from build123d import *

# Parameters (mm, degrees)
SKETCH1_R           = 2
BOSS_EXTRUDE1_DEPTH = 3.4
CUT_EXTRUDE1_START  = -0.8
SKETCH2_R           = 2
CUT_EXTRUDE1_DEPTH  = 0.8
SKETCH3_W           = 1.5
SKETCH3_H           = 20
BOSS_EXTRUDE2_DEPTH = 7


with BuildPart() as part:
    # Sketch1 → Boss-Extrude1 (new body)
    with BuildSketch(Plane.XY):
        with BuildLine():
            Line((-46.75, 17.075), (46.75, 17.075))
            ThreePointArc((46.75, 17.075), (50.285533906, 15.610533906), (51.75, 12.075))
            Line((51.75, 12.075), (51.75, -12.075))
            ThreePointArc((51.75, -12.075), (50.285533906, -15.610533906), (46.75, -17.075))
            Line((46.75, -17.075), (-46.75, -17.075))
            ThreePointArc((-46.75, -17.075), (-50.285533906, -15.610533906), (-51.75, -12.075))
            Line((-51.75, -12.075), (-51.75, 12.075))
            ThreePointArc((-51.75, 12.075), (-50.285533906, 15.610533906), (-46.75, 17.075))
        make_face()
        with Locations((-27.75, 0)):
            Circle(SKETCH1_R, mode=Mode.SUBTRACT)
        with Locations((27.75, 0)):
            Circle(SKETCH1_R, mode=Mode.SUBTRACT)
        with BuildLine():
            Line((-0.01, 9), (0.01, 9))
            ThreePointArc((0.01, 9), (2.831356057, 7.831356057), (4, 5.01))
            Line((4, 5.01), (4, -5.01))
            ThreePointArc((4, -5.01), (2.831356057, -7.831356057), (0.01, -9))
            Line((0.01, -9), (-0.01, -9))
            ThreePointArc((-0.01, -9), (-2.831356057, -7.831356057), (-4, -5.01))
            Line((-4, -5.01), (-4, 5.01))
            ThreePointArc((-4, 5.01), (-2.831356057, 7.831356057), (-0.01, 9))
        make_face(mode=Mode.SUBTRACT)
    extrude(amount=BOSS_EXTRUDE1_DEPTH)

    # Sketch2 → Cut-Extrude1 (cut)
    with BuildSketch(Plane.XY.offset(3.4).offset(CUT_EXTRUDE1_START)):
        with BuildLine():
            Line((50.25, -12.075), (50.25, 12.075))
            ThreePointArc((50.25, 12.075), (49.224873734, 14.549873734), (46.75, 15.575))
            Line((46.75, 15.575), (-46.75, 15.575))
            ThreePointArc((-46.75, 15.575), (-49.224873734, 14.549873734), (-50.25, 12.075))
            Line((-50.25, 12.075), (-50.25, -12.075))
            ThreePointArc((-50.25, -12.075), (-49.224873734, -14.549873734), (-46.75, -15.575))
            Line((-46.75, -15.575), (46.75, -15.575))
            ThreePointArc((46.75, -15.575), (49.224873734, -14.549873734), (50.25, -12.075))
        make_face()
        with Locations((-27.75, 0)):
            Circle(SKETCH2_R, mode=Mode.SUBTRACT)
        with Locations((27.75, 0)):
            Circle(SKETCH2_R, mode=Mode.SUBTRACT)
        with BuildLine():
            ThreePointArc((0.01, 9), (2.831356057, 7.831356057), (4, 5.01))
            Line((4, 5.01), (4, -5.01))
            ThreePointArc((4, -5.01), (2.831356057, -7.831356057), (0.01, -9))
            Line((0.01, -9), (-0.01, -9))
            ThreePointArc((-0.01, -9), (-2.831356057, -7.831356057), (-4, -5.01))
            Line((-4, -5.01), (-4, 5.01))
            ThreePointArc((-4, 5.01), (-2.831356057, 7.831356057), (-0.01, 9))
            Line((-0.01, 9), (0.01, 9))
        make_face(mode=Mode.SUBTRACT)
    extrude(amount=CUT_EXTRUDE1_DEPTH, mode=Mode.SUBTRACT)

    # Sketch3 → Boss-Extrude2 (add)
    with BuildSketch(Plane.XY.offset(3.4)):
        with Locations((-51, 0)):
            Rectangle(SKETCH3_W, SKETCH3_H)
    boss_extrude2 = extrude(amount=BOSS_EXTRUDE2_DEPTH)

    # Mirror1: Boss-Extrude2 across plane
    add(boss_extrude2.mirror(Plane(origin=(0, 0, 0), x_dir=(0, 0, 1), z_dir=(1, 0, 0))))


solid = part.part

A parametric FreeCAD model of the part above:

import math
import FreeCAD as App
import Part
import Sketcher

V = App.Vector
Q = App.Units.Quantity


def add_polygon(sketch, points):
    """Adds a closed chain of lines whose ends are joined by coincident constraints."""
    first, n = sketch.GeometryCount, len(points)
    for a, b in zip(points, points[1:] + points[:1]):
        sketch.addGeometry(Part.LineSegment(App.Vector(*a, 0), App.Vector(*b, 0)), False)
    for i in range(n):
        sketch.addConstraint(Sketcher.Constraint("Coincident", first + i, 2, first + (i + 1) % n, 1))

doc = App.newDocument("Part")
params = doc.addObject("Spreadsheet::Sheet", "Params")
for row, (alias, value) in enumerate([
    ("sketch1_diameter", "4 mm"),
    ("sketch1_radius", "5 mm"),
    ("sketch1_radius2", "3.99 mm"),
    ("sketch1_width", "93.5 mm"),
    ("sketch1_height", "24.15 mm"),
    ("pad1_length", "3.4 mm"),
    ("sketch2_diameter", "4 mm"),
    ("sketch2_radius", "3.5 mm"),
    ("sketch2_radius2", "3.99 mm"),
    ("sketch2_width", "93.5 mm"),
    ("sketch2_height", "24.15 mm"),
    ("pocket1_length", "0.8 mm"),
    ("sketch3_height", "20 mm"),
    ("sketch3_width", "1.5 mm"),
    ("pad2_length", "7 mm"),
], start=1):
    params.set(f"A{row}", alias)
    params.set(f"B{row}", "=" + value)
    params.setAlias(f"B{row}", alias)

body = doc.addObject("PartDesign::Body", "Body")

sketch1 = body.newObject("Sketcher::SketchObject", "Sketch")
sketch1.AttachmentSupport = (doc.getObject("XY_Plane"), [""])
sketch1.MapMode = "FlatFace"
sketch1.addGeometry([
    Part.LineSegment(V(46.75, 17.075, 0), V(-46.75, 17.075, 0)),
    Part.ArcOfCircle(Part.Circle(V(-46.75, 12.075, 0), V(0, 0, 1), 5), math.radians(90), math.radians(180)),
    Part.LineSegment(V(-51.75, 12.075, 0), V(-51.75, -12.075, 0)),
    Part.ArcOfCircle(Part.Circle(V(-46.75, -12.075, 0), V(0, 0, 1), 5), math.radians(180), math.radians(270)),
    Part.LineSegment(V(-46.75, -17.075, 0), V(46.75, -17.075, 0)),
    Part.ArcOfCircle(Part.Circle(V(46.75, -12.075, 0), V(0, 0, 1), 5), math.radians(-90), math.radians(0)),
    Part.LineSegment(V(51.75, -12.075, 0), V(51.75, 12.075, 0)),
    Part.ArcOfCircle(Part.Circle(V(46.75, 12.075, 0), V(0, 0, 1), 5), math.radians(0), math.radians(90)),
    Part.Circle(V(27.75, 0, 0), V(0, 0, 1), 2),
    Part.LineSegment(V(-0.01, 9, 0), V(0.01, 9, 0)),
    Part.ArcOfCircle(Part.Circle(V(0.01, 5.01, 0), V(0, 0, 1), 3.99), math.radians(0), math.radians(90)),
    Part.LineSegment(V(4, 5.01, 0), V(4, -5.01, 0)),
    Part.ArcOfCircle(Part.Circle(V(0.01, -5.01, 0), V(0, 0, 1), 3.99), math.radians(-90), math.radians(0)),
    Part.LineSegment(V(0.01, -9, 0), V(-0.01, -9, 0)),
    Part.ArcOfCircle(Part.Circle(V(-0.01, -5.01, 0), V(0, 0, 1), 3.99), math.radians(180), math.radians(270)),
    Part.LineSegment(V(-4, -5.01, 0), V(-4, 5.01, 0)),
    Part.ArcOfCircle(Part.Circle(V(-0.01, 5.01, 0), V(0, 0, 1), 3.99), math.radians(90), math.radians(180)),
    Part.Circle(V(-27.75, 0, 0), V(0, 0, 1), 2),
], False)
sketch1.addConstraint([
    Sketcher.Constraint("Tangent", 0, 2, 1, 1),
    Sketcher.Constraint("Tangent", 1, 2, 2, 1),
    Sketcher.Constraint("Tangent", 2, 2, 3, 1),
    Sketcher.Constraint("Tangent", 3, 2, 4, 1),
    Sketcher.Constraint("Tangent", 4, 2, 5, 1),
    Sketcher.Constraint("Tangent", 5, 2, 6, 1),
    Sketcher.Constraint("Tangent", 6, 2, 7, 1),
    Sketcher.Constraint("Tangent", 7, 2, 0, 1),
    Sketcher.Constraint("Tangent", 9, 2, 10, 2),
    Sketcher.Constraint("Tangent", 10, 1, 11, 1),
    Sketcher.Constraint("Tangent", 11, 2, 12, 2),
    Sketcher.Constraint("Tangent", 12, 1, 13, 1),
    Sketcher.Constraint("Tangent", 13, 2, 14, 2),
    Sketcher.Constraint("Tangent", 14, 1, 15, 1),
    Sketcher.Constraint("Tangent", 15, 2, 16, 2),
    Sketcher.Constraint("Tangent", 16, 1, 9, 1),
    Sketcher.Constraint("Horizontal", 0),
    Sketcher.Constraint("Vertical", 2),
    Sketcher.Constraint("Horizontal", 4),
    Sketcher.Constraint("Vertical", 6),
    Sketcher.Constraint("Horizontal", 9),
    Sketcher.Constraint("Vertical", 11),
    Sketcher.Constraint("Horizontal", 13),
    Sketcher.Constraint("Vertical", 15),
    Sketcher.Constraint("Equal", 1, 3),
    Sketcher.Constraint("Equal", 3, 5),
    Sketcher.Constraint("Equal", 5, 7),
    Sketcher.Constraint("Equal", 10, 12),
    Sketcher.Constraint("Equal", 12, 14),
    Sketcher.Constraint("Equal", 14, 16),
    Sketcher.Constraint("Equal", 8, 17),
    Sketcher.Constraint("Symmetric", 1, 3, 5, 3, -1, 1),
    Sketcher.Constraint("Symmetric", 10, 3, 14, 3, -1, 1),
    Sketcher.Constraint("Symmetric", 8, 3, 17, 3, -1, 1),
    Sketcher.Constraint("PointOnObject", 8, 3, -1),
    Sketcher.Constraint("Diameter", 8, Q("4 mm")),
    Sketcher.Constraint("Radius", 1, Q("5 mm")),
    Sketcher.Constraint("Radius", 10, Q("3.99 mm")),
    Sketcher.Constraint("DistanceX", 0, 2, 0, 1, Q("93.5 mm")),
    Sketcher.Constraint("DistanceY", -1, 1, 9, 2, Q("9 mm")),
    Sketcher.Constraint("DistanceX", -1, 1, 10, 1, Q("4 mm")),
    Sketcher.Constraint("DistanceX", 8, 3, 5, 3, Q("19 mm")),
    Sketcher.Constraint("DistanceY", 2, 2, 2, 1, Q("24.15 mm")),
])
sketch1.setExpression("Constraints[35]", "Params.sketch1_diameter")
sketch1.setExpression("Constraints[36]", "Params.sketch1_radius")
sketch1.setExpression("Constraints[37]", "Params.sketch1_radius2")
sketch1.setExpression("Constraints[38]", "Params.sketch1_width")
sketch1.setExpression("Constraints[42]", "Params.sketch1_height")
pad1 = body.newObject("PartDesign::Pad", "Pad")
pad1.Profile = sketch1
pad1.setExpression("Length", "Params.pad1_length")

sketch2 = body.newObject("Sketcher::SketchObject", "Sketch001")
sketch2.AttachmentSupport = (doc.getObject("XY_Plane"), [""])
sketch2.MapMode = "FlatFace"
sketch2.AttachmentOffset = App.Placement(V(0, 0, 2.6), App.Rotation())
sketch2.addGeometry([
    Part.LineSegment(V(50.25, -12.075, 0), V(50.25, 12.075, 0)),
    Part.ArcOfCircle(Part.Circle(V(46.75, 12.075, 0), V(0, 0, 1), 3.5), math.radians(0), math.radians(90)),
    Part.LineSegment(V(46.75, 15.575, 0), V(-46.75, 15.575, 0)),
    Part.ArcOfCircle(Part.Circle(V(-46.75, 12.075, 0), V(0, 0, 1), 3.5), math.radians(90), math.radians(180)),
    Part.LineSegment(V(-50.25, 12.075, 0), V(-50.25, -12.075, 0)),
    Part.ArcOfCircle(Part.Circle(V(-46.75, -12.075, 0), V(0, 0, 1), 3.5), math.radians(-180), math.radians(-90)),
    Part.LineSegment(V(-46.75, -15.575, 0), V(46.75, -15.575, 0)),
    Part.ArcOfCircle(Part.Circle(V(46.75, -12.075, 0), V(0, 0, 1), 3.5), math.radians(-90), math.radians(0)),
    Part.Circle(V(-27.75, 0, 0), V(0, 0, 1), 2),
    Part.LineSegment(V(-0.01, 9, 0), V(0.01, 9, 0)),
    Part.ArcOfCircle(Part.Circle(V(0.01, 5.01, 0), V(0, 0, 1), 3.99), math.radians(0), math.radians(90)),
    Part.LineSegment(V(4, 5.01, 0), V(4, -5.01, 0)),
    Part.ArcOfCircle(Part.Circle(V(0.01, -5.01, 0), V(0, 0, 1), 3.99), math.radians(-90), math.radians(0)),
    Part.LineSegment(V(0.01, -9, 0), V(-0.01, -9, 0)),
    Part.ArcOfCircle(Part.Circle(V(-0.01, -5.01, 0), V(0, 0, 1), 3.99), math.radians(180), math.radians(270)),
    Part.LineSegment(V(-4, -5.01, 0), V(-4, 5.01, 0)),
    Part.ArcOfCircle(Part.Circle(V(-0.01, 5.01, 0), V(0, 0, 1), 3.99), math.radians(90), math.radians(180)),
    Part.Circle(V(27.75, 0, 0), V(0, 0, 1), 2),
], False)
sketch2.addConstraint([
    Sketcher.Constraint("Tangent", 0, 2, 1, 1),
    Sketcher.Constraint("Tangent", 1, 2, 2, 1),
    Sketcher.Constraint("Tangent", 2, 2, 3, 1),
    Sketcher.Constraint("Tangent", 3, 2, 4, 1),
    Sketcher.Constraint("Tangent", 4, 2, 5, 1),
    Sketcher.Constraint("Tangent", 5, 2, 6, 1),
    Sketcher.Constraint("Tangent", 6, 2, 7, 1),
    Sketcher.Constraint("Tangent", 7, 2, 0, 1),
    Sketcher.Constraint("Tangent", 9, 2, 10, 2),
    Sketcher.Constraint("Tangent", 10, 1, 11, 1),
    Sketcher.Constraint("Tangent", 11, 2, 12, 2),
    Sketcher.Constraint("Tangent", 12, 1, 13, 1),
    Sketcher.Constraint("Tangent", 13, 2, 14, 2),
    Sketcher.Constraint("Tangent", 14, 1, 15, 1),
    Sketcher.Constraint("Tangent", 15, 2, 16, 2),
    Sketcher.Constraint("Tangent", 16, 1, 9, 1),
    Sketcher.Constraint("Vertical", 0),
    Sketcher.Constraint("Horizontal", 2),
    Sketcher.Constraint("Vertical", 4),
    Sketcher.Constraint("Horizontal", 6),
    Sketcher.Constraint("Horizontal", 9),
    Sketcher.Constraint("Vertical", 11),
    Sketcher.Constraint("Horizontal", 13),
    Sketcher.Constraint("Vertical", 15),
    Sketcher.Constraint("Equal", 1, 3),
    Sketcher.Constraint("Equal", 3, 5),
    Sketcher.Constraint("Equal", 5, 7),
    Sketcher.Constraint("Equal", 10, 12),
    Sketcher.Constraint("Equal", 12, 14),
    Sketcher.Constraint("Equal", 14, 16),
    Sketcher.Constraint("Equal", 8, 17),
    Sketcher.Constraint("Symmetric", 1, 3, 5, 3, -1, 1),
    Sketcher.Constraint("Symmetric", 10, 3, 14, 3, -1, 1),
    Sketcher.Constraint("Symmetric", 8, 3, 17, 3, -1, 1),
    Sketcher.Constraint("PointOnObject", 8, 3, -1),
    Sketcher.Constraint("Diameter", 8, Q("4 mm")),
    Sketcher.Constraint("Radius", 1, Q("3.5 mm")),
    Sketcher.Constraint("Radius", 10, Q("3.99 mm")),
    Sketcher.Constraint("DistanceX", 2, 2, 2, 1, Q("93.5 mm")),
    Sketcher.Constraint("DistanceY", -1, 1, 9, 2, Q("9 mm")),
    Sketcher.Constraint("DistanceX", -1, 1, 10, 1, Q("4 mm")),
    Sketcher.Constraint("DistanceX", 3, 3, 8, 3, Q("19 mm")),
    Sketcher.Constraint("DistanceY", 0, 1, 0, 2, Q("24.15 mm")),
])
sketch2.setExpression("Constraints[35]", "Params.sketch2_diameter")
sketch2.setExpression("Constraints[36]", "Params.sketch2_radius")
sketch2.setExpression("Constraints[37]", "Params.sketch2_radius2")
sketch2.setExpression("Constraints[38]", "Params.sketch2_width")
sketch2.setExpression("Constraints[42]", "Params.sketch2_height")
pocket1 = body.newObject("PartDesign::Pocket", "Pocket")
pocket1.Profile = sketch2
pocket1.setExpression("Length", "Params.pocket1_length")
pocket1.Reversed = True

sketch3 = body.newObject("Sketcher::SketchObject", "Sketch002")
sketch3.AttachmentSupport = (doc.getObject("XY_Plane"), [""])
sketch3.MapMode = "FlatFace"
sketch3.AttachmentOffset = App.Placement(V(0, 0, 3.4), App.Rotation())
add_polygon(sketch3, [(-51.8, 10), (-51.8, -10), (-50.2, -10), (-50.2, 10)])
sketch3.addConstraint([
    Sketcher.Constraint("Vertical", 0),
    Sketcher.Constraint("Horizontal", 1),
    Sketcher.Constraint("Vertical", 2),
    Sketcher.Constraint("Horizontal", 3),
    Sketcher.Constraint("DistanceY", 0, 2, 0, 1, Q("20 mm")),
    Sketcher.Constraint("DistanceX", 1, 1, 1, 2, Q("1.5 mm")),
    Sketcher.Constraint("DistanceY", 0, 2, -1, 1, Q("10 mm")),
    Sketcher.Constraint("DistanceX", 0, 2, -1, 1, Q("51.75 mm")),
])
sketch3.setExpression("Constraints[8]", "Params.sketch3_height")
sketch3.setExpression("Constraints[9]", "Params.sketch3_width")
pad2 = body.newObject("PartDesign::Pad", "Pad001")
pad2.Profile = sketch3
pad2.setExpression("Length", "Params.pad2_length")
doc.recompute()

mirrored = body.newObject("PartDesign::Mirrored", "Mirrored")
mirrored.Originals = [pad2]
mirrored.MirrorPlane = (doc.getObject("YZ_Plane"), [""])
body.Tip = mirrored

doc.recompute()
